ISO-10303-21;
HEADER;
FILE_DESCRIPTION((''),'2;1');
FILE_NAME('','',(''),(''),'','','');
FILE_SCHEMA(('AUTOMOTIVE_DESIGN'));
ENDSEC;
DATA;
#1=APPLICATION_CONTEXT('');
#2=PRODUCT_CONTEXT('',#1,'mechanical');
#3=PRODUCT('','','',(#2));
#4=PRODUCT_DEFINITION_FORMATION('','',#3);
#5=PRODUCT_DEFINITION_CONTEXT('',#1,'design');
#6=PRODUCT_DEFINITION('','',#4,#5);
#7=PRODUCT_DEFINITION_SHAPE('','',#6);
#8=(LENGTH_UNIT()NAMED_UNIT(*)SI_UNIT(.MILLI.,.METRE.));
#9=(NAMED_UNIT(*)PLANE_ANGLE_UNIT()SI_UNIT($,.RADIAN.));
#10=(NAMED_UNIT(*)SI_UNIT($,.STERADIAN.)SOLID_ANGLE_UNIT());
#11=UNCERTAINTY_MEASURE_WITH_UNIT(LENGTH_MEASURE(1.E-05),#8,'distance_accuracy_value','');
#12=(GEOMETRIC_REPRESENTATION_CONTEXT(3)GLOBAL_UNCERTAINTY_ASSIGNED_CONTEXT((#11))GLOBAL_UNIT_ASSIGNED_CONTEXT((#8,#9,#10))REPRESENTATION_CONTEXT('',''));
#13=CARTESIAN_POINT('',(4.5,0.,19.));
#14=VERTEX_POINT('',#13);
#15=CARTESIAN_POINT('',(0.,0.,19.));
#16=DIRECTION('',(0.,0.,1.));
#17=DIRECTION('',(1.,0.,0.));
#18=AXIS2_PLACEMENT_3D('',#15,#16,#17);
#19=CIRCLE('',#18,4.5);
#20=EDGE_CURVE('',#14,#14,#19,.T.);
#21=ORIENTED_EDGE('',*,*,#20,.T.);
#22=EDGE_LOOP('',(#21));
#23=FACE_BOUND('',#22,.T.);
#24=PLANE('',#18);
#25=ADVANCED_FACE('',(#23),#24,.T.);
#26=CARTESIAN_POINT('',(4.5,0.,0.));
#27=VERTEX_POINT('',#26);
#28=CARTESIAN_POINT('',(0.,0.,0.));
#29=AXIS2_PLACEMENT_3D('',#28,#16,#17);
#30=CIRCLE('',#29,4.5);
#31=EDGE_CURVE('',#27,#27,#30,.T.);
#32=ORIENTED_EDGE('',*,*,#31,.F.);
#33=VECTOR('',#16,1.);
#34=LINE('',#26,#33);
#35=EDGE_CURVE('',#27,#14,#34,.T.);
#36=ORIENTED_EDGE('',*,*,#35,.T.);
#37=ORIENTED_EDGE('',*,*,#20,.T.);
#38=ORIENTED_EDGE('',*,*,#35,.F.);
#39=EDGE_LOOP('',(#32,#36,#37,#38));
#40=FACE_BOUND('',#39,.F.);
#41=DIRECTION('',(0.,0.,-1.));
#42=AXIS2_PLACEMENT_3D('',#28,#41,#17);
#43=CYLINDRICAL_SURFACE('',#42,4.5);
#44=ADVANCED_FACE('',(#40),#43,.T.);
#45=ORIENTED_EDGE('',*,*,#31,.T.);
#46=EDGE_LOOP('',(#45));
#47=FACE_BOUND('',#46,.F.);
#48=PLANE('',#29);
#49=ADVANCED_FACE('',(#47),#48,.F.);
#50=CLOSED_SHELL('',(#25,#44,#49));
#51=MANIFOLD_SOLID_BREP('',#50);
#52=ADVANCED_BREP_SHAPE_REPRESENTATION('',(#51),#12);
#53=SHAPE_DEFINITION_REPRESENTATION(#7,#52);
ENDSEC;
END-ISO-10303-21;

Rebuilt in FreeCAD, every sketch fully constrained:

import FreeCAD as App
import Part
import Sketcher
from FreeCAD import Vector
Q = App.Units.Quantity

doc = App.newDocument("Part")
body = doc.addObject("PartDesign::Body", "Body")

# Sketch on XY plane
sketch1 = body.newObject("Sketcher::SketchObject", "Sketch")
sketch1.AttachmentSupport = (doc.getObject("XY_Plane"), [""])
sketch1.MapMode = "FlatFace"
sketch1.addGeometry(Part.Circle(Vector(0, 0, 0), Vector(0, 0, 1), 4.5), False)
sketch1.addConstraint([
    Sketcher.Constraint("Coincident", 0, 3, -1, 1),
    Sketcher.Constraint("Diameter", 0, Q("9 mm")),
])
pad1 = body.newObject("PartDesign::Pad", "Pad")
pad1.Profile = sketch1
pad1.Length = 19

doc.recompute()
